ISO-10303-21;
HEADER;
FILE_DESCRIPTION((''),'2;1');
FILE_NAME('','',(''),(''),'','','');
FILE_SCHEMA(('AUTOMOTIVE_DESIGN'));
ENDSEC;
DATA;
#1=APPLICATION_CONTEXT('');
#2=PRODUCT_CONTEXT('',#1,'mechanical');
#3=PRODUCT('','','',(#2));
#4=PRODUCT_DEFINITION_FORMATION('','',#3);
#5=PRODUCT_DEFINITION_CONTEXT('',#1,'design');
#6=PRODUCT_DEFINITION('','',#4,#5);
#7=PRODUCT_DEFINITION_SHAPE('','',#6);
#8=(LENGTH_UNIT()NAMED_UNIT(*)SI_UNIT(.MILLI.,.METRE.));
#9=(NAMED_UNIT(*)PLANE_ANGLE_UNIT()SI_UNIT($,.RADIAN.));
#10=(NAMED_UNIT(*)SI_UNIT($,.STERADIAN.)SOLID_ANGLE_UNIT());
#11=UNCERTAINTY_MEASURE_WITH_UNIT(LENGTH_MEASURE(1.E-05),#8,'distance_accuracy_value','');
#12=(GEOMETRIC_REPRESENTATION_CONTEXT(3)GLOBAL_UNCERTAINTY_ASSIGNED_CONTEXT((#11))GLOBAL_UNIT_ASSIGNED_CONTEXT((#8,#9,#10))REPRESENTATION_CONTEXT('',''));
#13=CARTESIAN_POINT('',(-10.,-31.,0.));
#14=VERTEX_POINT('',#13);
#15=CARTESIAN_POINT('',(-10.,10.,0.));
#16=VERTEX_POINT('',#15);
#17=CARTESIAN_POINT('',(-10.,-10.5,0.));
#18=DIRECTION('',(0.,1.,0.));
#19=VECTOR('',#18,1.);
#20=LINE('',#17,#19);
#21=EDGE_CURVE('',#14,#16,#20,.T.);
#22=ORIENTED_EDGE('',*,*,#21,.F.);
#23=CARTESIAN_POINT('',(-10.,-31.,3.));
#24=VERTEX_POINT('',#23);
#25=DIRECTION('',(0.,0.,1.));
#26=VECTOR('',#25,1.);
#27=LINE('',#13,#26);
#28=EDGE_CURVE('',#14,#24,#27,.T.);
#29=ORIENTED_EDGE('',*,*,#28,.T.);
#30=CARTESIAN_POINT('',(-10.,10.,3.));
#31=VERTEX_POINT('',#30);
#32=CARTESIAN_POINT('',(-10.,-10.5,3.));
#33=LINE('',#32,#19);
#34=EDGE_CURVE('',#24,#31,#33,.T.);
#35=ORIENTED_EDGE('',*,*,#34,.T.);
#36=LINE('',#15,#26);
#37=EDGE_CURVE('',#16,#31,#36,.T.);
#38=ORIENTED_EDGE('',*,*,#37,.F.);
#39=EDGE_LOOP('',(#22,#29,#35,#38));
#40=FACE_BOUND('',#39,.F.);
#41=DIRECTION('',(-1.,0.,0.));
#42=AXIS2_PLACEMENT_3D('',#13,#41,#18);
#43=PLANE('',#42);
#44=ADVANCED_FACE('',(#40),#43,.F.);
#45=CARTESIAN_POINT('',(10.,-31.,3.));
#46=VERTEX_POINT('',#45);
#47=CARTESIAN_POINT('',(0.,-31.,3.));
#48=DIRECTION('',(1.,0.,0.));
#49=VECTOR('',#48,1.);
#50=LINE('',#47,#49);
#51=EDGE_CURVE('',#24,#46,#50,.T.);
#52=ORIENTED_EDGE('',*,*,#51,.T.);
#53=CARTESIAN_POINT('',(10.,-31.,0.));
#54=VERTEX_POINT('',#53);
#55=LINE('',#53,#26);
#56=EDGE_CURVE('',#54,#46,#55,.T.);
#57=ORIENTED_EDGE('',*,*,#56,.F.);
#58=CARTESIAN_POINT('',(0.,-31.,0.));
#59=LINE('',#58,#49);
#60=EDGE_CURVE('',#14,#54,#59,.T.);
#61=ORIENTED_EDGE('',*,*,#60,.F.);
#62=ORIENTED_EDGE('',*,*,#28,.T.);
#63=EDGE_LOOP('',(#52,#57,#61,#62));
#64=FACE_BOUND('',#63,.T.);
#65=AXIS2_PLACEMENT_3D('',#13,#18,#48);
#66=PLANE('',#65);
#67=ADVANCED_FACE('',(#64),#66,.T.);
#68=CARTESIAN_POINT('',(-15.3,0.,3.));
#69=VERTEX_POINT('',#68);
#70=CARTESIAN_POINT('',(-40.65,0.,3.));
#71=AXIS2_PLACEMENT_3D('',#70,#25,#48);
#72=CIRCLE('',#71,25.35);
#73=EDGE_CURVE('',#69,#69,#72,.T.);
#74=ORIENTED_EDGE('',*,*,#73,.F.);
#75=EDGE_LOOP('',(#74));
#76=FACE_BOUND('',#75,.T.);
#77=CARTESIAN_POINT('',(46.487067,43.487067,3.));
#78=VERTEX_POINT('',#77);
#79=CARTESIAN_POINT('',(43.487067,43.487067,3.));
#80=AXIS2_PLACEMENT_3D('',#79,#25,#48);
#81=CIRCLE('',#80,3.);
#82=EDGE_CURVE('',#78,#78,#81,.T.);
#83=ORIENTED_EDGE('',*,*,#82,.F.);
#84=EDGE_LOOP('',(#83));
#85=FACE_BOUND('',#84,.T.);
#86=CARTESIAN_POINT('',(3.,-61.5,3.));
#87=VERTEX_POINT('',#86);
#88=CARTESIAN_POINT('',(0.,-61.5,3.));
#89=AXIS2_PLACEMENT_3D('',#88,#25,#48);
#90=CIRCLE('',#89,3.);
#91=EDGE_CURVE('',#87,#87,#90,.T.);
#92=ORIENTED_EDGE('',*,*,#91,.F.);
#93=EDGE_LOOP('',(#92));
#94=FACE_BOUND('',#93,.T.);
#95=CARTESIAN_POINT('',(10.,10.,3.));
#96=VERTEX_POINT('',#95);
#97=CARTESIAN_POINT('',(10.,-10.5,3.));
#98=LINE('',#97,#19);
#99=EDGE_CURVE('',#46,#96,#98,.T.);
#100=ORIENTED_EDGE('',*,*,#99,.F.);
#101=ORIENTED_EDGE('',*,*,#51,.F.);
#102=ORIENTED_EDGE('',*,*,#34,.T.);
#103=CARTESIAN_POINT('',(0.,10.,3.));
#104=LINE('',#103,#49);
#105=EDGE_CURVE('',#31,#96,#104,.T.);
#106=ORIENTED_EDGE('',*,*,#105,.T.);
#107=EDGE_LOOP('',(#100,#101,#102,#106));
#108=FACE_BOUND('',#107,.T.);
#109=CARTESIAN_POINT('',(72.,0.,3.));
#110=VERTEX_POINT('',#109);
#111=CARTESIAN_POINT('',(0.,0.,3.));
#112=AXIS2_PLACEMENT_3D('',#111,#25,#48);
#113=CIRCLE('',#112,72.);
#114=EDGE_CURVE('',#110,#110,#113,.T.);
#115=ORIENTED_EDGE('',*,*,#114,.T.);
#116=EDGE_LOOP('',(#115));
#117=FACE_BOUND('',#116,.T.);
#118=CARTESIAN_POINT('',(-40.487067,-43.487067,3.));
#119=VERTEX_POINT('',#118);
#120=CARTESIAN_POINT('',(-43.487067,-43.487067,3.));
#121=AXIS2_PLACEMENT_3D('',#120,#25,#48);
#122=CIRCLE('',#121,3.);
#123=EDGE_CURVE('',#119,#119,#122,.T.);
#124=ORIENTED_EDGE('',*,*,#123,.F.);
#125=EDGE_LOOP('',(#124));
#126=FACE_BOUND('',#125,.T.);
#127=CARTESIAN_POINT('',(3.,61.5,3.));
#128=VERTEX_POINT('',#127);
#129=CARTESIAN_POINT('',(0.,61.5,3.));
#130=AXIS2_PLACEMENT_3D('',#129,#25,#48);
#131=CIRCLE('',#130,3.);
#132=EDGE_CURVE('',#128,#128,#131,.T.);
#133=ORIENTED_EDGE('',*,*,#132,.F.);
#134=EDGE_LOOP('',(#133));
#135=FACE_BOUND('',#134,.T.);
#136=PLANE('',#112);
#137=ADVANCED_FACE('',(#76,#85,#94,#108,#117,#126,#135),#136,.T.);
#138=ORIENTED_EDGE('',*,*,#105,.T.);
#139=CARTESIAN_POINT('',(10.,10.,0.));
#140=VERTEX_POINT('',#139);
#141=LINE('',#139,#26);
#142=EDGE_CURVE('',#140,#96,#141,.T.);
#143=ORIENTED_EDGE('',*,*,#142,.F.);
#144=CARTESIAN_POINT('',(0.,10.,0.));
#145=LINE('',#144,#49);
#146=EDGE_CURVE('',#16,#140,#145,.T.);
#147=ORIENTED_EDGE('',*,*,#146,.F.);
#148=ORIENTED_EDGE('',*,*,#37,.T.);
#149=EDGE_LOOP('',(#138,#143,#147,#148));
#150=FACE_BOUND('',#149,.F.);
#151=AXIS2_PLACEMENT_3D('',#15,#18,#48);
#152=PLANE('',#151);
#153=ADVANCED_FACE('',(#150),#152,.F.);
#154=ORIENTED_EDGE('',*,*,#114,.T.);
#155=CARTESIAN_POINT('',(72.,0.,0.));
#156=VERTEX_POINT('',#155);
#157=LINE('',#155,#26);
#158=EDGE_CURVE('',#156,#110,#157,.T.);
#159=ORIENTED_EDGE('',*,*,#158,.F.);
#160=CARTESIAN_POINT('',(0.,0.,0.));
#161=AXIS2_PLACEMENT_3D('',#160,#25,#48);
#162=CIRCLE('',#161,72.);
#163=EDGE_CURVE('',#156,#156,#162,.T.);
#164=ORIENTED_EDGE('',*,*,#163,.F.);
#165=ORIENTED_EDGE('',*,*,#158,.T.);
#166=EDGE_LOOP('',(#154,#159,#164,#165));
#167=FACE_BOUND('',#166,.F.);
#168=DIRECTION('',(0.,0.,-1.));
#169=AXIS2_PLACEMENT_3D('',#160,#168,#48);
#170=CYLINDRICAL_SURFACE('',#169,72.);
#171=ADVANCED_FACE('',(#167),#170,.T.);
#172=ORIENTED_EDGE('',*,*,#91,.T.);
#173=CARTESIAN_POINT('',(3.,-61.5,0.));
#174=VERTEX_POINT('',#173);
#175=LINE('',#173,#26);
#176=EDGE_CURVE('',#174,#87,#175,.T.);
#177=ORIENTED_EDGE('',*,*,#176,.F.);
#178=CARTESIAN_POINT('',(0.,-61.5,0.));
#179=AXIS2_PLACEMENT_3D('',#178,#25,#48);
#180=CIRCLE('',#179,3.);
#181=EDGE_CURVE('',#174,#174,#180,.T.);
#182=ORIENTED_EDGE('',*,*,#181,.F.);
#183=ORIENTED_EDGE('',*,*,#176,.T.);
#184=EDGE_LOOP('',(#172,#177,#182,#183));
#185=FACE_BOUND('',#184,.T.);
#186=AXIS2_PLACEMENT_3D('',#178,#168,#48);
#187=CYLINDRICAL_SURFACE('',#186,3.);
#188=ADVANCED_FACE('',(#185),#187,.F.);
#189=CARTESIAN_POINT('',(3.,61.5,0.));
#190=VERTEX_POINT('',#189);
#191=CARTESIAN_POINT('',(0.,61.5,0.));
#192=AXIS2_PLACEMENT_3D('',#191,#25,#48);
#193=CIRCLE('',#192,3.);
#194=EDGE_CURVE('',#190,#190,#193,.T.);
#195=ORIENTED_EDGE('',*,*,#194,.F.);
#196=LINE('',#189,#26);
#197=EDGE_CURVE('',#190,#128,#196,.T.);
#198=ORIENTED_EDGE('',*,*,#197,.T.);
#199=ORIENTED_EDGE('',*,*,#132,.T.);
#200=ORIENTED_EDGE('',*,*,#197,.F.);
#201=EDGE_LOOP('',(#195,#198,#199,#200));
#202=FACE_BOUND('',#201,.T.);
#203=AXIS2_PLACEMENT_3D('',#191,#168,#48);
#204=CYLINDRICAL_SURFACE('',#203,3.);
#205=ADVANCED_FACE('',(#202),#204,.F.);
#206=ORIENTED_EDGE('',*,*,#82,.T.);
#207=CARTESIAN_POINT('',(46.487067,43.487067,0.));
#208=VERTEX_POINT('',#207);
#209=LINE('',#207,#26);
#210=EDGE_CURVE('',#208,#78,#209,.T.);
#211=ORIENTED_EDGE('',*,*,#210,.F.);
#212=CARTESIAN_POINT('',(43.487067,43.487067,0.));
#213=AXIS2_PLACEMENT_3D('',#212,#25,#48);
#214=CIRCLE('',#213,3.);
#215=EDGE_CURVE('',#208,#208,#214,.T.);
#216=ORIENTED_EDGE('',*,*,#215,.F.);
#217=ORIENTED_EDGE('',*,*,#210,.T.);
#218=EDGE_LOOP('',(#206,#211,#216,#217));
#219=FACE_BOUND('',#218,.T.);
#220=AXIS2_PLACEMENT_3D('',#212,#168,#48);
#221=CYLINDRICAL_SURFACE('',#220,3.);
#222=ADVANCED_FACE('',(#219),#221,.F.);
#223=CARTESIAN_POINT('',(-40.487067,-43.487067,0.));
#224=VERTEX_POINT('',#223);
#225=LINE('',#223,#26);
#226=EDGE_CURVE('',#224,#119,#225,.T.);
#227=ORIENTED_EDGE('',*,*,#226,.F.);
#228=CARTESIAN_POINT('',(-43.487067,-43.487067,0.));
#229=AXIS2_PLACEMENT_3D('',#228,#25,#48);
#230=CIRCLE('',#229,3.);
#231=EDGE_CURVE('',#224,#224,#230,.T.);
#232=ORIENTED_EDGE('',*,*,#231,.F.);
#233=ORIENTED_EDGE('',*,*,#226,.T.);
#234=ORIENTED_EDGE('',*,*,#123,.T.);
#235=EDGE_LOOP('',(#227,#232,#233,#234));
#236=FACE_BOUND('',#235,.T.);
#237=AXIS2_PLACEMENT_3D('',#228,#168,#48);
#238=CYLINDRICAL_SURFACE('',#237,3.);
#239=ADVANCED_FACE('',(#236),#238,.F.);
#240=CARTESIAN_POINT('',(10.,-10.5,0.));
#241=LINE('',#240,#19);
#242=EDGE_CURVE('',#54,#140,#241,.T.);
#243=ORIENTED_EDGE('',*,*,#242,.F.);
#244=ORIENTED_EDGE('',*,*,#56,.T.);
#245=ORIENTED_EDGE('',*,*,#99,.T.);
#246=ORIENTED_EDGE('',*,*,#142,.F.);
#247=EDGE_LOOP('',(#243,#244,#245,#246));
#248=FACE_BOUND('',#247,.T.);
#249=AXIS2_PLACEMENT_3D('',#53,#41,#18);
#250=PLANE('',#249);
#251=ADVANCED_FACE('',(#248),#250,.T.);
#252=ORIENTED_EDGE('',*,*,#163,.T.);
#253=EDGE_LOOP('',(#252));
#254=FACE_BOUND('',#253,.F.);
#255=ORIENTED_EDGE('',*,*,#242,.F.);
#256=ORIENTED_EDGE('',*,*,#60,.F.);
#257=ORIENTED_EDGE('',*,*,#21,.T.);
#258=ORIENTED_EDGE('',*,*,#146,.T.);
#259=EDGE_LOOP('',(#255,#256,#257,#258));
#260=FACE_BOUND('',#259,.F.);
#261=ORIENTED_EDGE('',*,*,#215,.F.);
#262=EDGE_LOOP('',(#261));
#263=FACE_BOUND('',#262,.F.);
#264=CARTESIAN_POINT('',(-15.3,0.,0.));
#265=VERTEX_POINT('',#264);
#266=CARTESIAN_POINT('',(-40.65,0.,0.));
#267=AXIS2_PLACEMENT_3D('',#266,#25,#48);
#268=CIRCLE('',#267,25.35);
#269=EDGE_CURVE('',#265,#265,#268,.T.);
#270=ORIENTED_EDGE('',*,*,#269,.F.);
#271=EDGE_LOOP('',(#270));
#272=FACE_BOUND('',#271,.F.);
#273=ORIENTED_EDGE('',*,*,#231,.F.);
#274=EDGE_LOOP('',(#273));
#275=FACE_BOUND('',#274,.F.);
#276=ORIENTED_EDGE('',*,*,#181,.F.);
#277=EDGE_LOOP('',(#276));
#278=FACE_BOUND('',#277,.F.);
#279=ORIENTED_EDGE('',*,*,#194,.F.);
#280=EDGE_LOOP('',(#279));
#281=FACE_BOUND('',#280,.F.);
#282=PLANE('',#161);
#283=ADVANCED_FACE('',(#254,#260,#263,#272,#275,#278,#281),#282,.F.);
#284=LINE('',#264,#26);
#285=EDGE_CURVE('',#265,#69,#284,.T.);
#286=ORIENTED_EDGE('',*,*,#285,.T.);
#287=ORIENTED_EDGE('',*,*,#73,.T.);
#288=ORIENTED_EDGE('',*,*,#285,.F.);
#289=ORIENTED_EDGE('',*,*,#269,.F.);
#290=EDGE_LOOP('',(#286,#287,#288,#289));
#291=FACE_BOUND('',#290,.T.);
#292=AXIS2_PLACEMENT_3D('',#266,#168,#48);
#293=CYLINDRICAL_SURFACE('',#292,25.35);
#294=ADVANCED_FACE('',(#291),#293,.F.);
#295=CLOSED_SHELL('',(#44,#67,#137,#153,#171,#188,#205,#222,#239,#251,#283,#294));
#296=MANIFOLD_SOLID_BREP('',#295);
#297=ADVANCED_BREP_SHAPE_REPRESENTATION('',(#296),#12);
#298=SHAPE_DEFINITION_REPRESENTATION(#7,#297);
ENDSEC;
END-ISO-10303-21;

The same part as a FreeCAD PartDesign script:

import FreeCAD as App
import Part
import Sketcher
Q = App.Units.Quantity

doc = App.newDocument("Part")
body = doc.addObject("PartDesign::Body", "Body")

# Sketch on XY plane
sketch1 = body.newObject("Sketcher::SketchObject", "Sketch")
sketch1.AttachmentSupport = (doc.getObject("XY_Plane"), [""])
sketch1.MapMode = "FlatFace"
sketch1.addGeometry(Part.Circle(App.Vector(0, 0, 0), App.Vector(0, 0, 1), 72), False)
sketch1.addGeometry(Part.Circle(App.Vector(-43.5, -43.5, 0), App.Vector(0, 0, 1), 3), False)
sketch1.addGeometry(Part.Circle(App.Vector(0, -61.5, 0), App.Vector(0, 0, 1), 3), False)
sketch1.addGeometry(Part.LineSegment(App.Vector(10, -31, 0), App.Vector(-10, -31, 0)), False)
sketch1.addGeometry(Part.LineSegment(App.Vector(-10, -31, 0), App.Vector(-10, 10, 0)), False)
sketch1.addGeometry(Part.LineSegment(App.Vector(-10, 10, 0), App.Vector(10, 10, 0)), False)
sketch1.addGeometry(Part.LineSegment(App.Vector(10, 10, 0), App.Vector(10, -31, 0)), False)
sketch1.addGeometry(Part.Circle(App.Vector(-40.6, 0, 0), App.Vector(0, 0, 1), 25.4), False)
sketch1.addGeometry(Part.Circle(App.Vector(0, 61.5, 0), App.Vector(0, 0, 1), 3), False)
sketch1.addGeometry(Part.Circle(App.Vector(43.5, 43.5, 0), App.Vector(0, 0, 1), 3), False)
sketch1.addConstraint(Sketcher.Constraint("Coincident", 3, 2, 4, 1))
sketch1.addConstraint(Sketcher.Constraint("Coincident", 4, 2, 5, 1))
sketch1.addConstraint(Sketcher.Constraint("Coincident", 5, 2, 6, 1))
sketch1.addConstraint(Sketcher.Constraint("Coincident", 6, 2, 3, 1))
sketch1.addConstraint(Sketcher.Constraint("Horizontal", 3))
sketch1.addConstraint(Sketcher.Constraint("Vertical", 4))
sketch1.addConstraint(Sketcher.Constraint("Horizontal", 5))
sketch1.addConstraint(Sketcher.Constraint("Vertical", 6))
sketch1.addConstraint(Sketcher.Constraint("Coincident", 0, 3, -1, 1))
sketch1.addConstraint(Sketcher.Constraint("Equal", 1, 2))
sketch1.addConstraint(Sketcher.Constraint("Equal", 2, 8))
sketch1.addConstraint(Sketcher.Constraint("Equal", 8, 9))
sketch1.addConstraint(Sketcher.Constraint("Symmetric", 2, 3, 8, 3, -1, 1))
sketch1.addConstraint(Sketcher.Constraint("Symmetric", 1, 3, 9, 3, -1, 1))
sketch1.addConstraint(Sketcher.Constraint("PointOnObject", 2, 3, -2))
sketch1.addConstraint(Sketcher.Constraint("PointOnObject", 7, 3, -1))
sketch1.addConstraint(Sketcher.Constraint("Diameter", 0, Q("144 mm")))
sketch1.addConstraint(Sketcher.Constraint("Diameter", 1, Q("6 mm")))
sketch1.addConstraint(Sketcher.Constraint("Diameter", 7, Q("50.7 mm")))
sketch1.addConstraint(Sketcher.Constraint("DistanceX", 3, 2, 3, 1, Q("20 mm")))
sketch1.addConstraint(Sketcher.Constraint("DistanceY", 4, 1, 4, 2, Q("41 mm")))
sketch1.addConstraint(Sketcher.Constraint("DistanceX", 3, 2, -1, 1, Q("10 mm")))
sketch1.addConstraint(Sketcher.Constraint("DistanceY", 3, 2, -1, 1, Q("31 mm")))
sketch1.addConstraint(Sketcher.Constraint("DistanceY", 2, 3, 8, 3, Q("123 mm")))
sketch1.addConstraint(Sketcher.Constraint("DistanceX", 7, 3, -1, 1, Q("40.65 mm")))
sketch1.addConstraint(Sketcher.Constraint("DistanceX", 1, 3, -1, 1, Q("43.487067 mm")))
sketch1.addConstraint(Sketcher.Constraint("DistanceY", 1, 3, -1, 1, Q("43.487067 mm")))
pad1 = body.newObject("PartDesign::Pad", "Pad")
pad1.Profile = sketch1
pad1.Length = 3

doc.recompute()
